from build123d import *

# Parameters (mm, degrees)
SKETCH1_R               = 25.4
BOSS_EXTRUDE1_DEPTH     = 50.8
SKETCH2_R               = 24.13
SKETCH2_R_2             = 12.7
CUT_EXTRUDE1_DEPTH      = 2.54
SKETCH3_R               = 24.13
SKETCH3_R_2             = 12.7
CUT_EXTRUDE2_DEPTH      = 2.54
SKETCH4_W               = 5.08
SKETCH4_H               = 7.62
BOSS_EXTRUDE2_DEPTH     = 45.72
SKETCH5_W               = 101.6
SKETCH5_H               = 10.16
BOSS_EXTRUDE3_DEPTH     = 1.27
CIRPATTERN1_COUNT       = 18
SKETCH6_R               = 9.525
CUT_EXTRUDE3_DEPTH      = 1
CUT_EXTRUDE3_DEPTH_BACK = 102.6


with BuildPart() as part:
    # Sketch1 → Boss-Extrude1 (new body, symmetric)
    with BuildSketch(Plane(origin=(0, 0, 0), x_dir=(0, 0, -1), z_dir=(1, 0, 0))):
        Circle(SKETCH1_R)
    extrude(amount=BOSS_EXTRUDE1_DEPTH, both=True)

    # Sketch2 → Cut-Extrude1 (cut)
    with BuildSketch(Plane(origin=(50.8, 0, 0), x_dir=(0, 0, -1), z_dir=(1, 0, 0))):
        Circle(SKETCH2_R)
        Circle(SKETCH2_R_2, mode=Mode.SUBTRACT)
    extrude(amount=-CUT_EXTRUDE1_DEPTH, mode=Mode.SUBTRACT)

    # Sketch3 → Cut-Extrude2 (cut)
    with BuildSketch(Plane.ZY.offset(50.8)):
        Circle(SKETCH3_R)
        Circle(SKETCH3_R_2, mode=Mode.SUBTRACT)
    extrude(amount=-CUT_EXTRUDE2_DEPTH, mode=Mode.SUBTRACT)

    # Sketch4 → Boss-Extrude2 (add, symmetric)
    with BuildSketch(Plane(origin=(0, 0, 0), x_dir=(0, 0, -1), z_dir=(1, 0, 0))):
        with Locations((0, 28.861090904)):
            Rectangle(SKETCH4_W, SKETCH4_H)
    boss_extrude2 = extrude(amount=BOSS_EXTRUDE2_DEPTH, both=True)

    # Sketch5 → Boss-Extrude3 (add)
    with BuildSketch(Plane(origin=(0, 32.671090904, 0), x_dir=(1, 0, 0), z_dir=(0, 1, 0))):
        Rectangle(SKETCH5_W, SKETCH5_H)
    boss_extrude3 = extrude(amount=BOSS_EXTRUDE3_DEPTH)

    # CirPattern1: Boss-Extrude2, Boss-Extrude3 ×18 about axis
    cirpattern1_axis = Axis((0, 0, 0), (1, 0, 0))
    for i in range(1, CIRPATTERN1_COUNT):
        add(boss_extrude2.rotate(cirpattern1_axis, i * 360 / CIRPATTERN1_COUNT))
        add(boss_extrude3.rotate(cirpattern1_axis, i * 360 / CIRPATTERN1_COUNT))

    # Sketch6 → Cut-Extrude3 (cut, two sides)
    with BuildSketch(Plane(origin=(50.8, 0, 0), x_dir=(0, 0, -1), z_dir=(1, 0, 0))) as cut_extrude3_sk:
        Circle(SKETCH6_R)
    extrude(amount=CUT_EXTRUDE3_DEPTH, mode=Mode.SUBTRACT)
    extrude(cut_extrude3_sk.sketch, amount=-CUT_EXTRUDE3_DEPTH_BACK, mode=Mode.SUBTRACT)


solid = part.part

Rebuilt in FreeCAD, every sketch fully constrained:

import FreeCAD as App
import Part
import Sketcher

V = App.Vector
Q = App.Units.Quantity

doc = App.newDocument("Part")
body = doc.addObject("PartDesign::Body", "Body")

# Sketch on YZ plane
sketch1 = doc.addObject("Sketcher::SketchObject", "Sketch")
body.addObject(sketch1)
sketch1.AttachmentSupport = (doc.YZ_Plane, [""])
sketch1.MapMode = "FlatFace"
sketch1.addGeometry(Part.Circle(V(0, 0, 0), V(0, 0, 1), 25), False)
sketch1.addConstraint([
    Sketcher.Constraint("Coincident", 0, 3, -1, 1),
    Sketcher.Constraint("Diameter", 0, Q("2 in")),
])
pad1 = doc.addObject("PartDesign::Pad", "Pad")
body.addObject(pad1)
pad1.Profile = sketch1
pad1.Length = Q("4 in")
pad1.Midplane = True

# Sketch on YZ plane
sketch2 = doc.addObject("Sketcher::SketchObject", "Sketch001")
body.addObject(sketch2)
sketch2.AttachmentSupport = (doc.YZ_Plane, [""])
sketch2.MapMode = "FlatFace"
sketch2.AttachmentOffset = App.Placement(V(0, 0, 2 * 25.4), App.Rotation())
sketch2.addGeometry([
    Part.Circle(V(0, 0, 0), V(0, 0, 1), 24),
    Part.Circle(V(0, 0, 0), V(0, 0, 1), 13),
], False)
sketch2.addConstraint([
    Sketcher.Constraint("Coincident", 0, 3, -1, 1),
    Sketcher.Constraint("Coincident", 1, 3, -1, 1),
    Sketcher.Constraint("Diameter", 1, Q("1 in")),
    Sketcher.Constraint("Diameter", 0, Q("1.9 in")),
])
pocket1 = doc.addObject("PartDesign::Pocket", "Pocket")
body.addObject(pocket1)
pocket1.Profile = sketch2
pocket1.Length = Q("0.1 in")

# Sketch on YZ plane
sketch3 = doc.addObject("Sketcher::SketchObject", "Sketch002")
body.addObject(sketch3)
sketch3.AttachmentSupport = (doc.YZ_Plane, [""])
sketch3.MapMode = "FlatFace"
sketch3.AttachmentOffset = App.Placement(V(0, 0, -2 * 25.4), App.Rotation())
sketch3.addGeometry([
    Part.Circle(V(0, 0, 0), V(0, 0, 1), 24),
    Part.Circle(V(0, 0, 0), V(0, 0, 1), 13),
], False)
sketch3.addConstraint([
    Sketcher.Constraint("Coincident", 0, 3, -1, 1),
    Sketcher.Constraint("Coincident", 1, 3, -1, 1),
    Sketcher.Constraint("Diameter", 1, Q("1 in")),
    Sketcher.Constraint("Diameter", 0, Q("1.9 in")),
])
pocket2 = doc.addObject("PartDesign::Pocket", "Pocket001")
body.addObject(pocket2)
pocket2.Profile = sketch3
pocket2.Length = Q("0.1 in")
pocket2.Reversed = True

# Sketch on YZ plane
sketch4 = doc.addObject("Sketcher::SketchObject", "Sketch003")
body.addObject(sketch4)
sketch4.AttachmentSupport = (doc.YZ_Plane, [""])
sketch4.MapMode = "FlatFace"
sketch4.addGeometry([
    Part.LineSegment(V(33, 3, 0), V(25, 3, 0)),
    Part.LineSegment(V(25, 3, 0), V(25, -3, 0)),
    Part.LineSegment(V(25, -3, 0), V(33, -3, 0)),
    Part.LineSegment(V(33, -3, 0), V(33, 3, 0)),
], False)
sketch4.addConstraint([
    Sketcher.Constraint("Coincident", 0, 2, 1, 1),
    Sketcher.Constraint("Coincident", 1, 2, 2, 1),
    Sketcher.Constraint("Coincident", 2, 2, 3, 1),
    Sketcher.Constraint("Coincident", 3, 2, 0, 1),
    Sketcher.Constraint("Horizontal", 0),
    Sketcher.Constraint("Vertical", 1),
    Sketcher.Constraint("Horizontal", 2),
    Sketcher.Constraint("Vertical", 3),
    Sketcher.Constraint("DistanceX", 0, 2, 0, 1, Q("0.3 in")),
    Sketcher.Constraint("DistanceY", 1, 2, 1, 1, Q("0.2 in")),
    Sketcher.Constraint("DistanceY", -1, 1, 0, 2, Q("0.1 in")),
    Sketcher.Constraint("DistanceX", -1, 1, 0, 2, 25.051091),
])
pad2 = doc.addObject("PartDesign::Pad", "Pad001")
body.addObject(pad2)
pad2.Profile = sketch4
pad2.Length = Q("3.6 in")
pad2.Midplane = True

# Sketch on XZ plane
sketch5 = doc.addObject("Sketcher::SketchObject", "Sketch004")
body.addObject(sketch5)
sketch5.AttachmentSupport = (doc.XZ_Plane, [""])
sketch5.MapMode = "FlatFace"
sketch5.AttachmentOffset = App.Placement(V(0, 0, -32.671091), App.Rotation())
sketch5.addGeometry([
    Part.LineSegment(V(-51, -5, 0), V(-51, 5, 0)),
    Part.LineSegment(V(-51, 5, 0), V(51, 5, 0)),
    Part.LineSegment(V(51, 5, 0), V(51, -5, 0)),
    Part.LineSegment(V(51, -5, 0), V(-51, -5, 0)),
], False)
sketch5.addConstraint([
    Sketcher.Constraint("Coincident", 0, 2, 1, 1),
    Sketcher.Constraint("Coincident", 1, 2, 2, 1),
    Sketcher.Constraint("Coincident", 2, 2, 3, 1),
    Sketcher.Constraint("Coincident", 3, 2, 0, 1),
    Sketcher.Constraint("Vertical", 0),
    Sketcher.Constraint("Horizontal", 1),
    Sketcher.Constraint("Vertical", 2),
    Sketcher.Constraint("Horizontal", 3),
    Sketcher.Constraint("Symmetric", 0, 2, 2, 2, -1, 1),
    Sketcher.Constraint("DistanceX", 1, 1, 1, 2, Q("4 in")),
    Sketcher.Constraint("DistanceY", 0, 1, 0, 2, Q("0.4 in")),
])
pad3 = doc.addObject("PartDesign::Pad", "Pad002")
body.addObject(pad3)
pad3.Profile = sketch5
pad3.Length = Q("0.05 in")
pad3.Reversed = True
doc.recompute()

polarpattern = doc.addObject("PartDesign::PolarPattern", "PolarPattern")
body.addObject(polarpattern)
polarpattern.Originals = [pad2, pad3]
polarpattern.Axis = (doc.X_Axis, [""])
polarpattern.Angle = 360
polarpattern.Occurrences = 18
body.Tip = polarpattern

# Sketch on YZ plane
sketch6 = doc.addObject("Sketcher::SketchObject", "Sketch005")
body.addObject(sketch6)
sketch6.AttachmentSupport = (doc.YZ_Plane, [""])
sketch6.MapMode = "FlatFace"
sketch6.AttachmentOffset = App.Placement(V(0, 0, 2 * 25.4), App.Rotation())
sketch6.addGeometry(Part.Circle(V(0, 0, 0), V(0, 0, 1), 10), False)
sketch6.addConstraint([
    Sketcher.Constraint("Coincident", 0, 3, -1, 1),
    Sketcher.Constraint("Diameter", 0, Q("0.75 in")),
])
pocket3 = doc.addObject("PartDesign::Pocket", "Pocket002")
body.addObject(pocket3)
pocket3.Profile = sketch6
pocket3.Type = "ThroughAll"
pocket3.Midplane = True

doc.recompute()
